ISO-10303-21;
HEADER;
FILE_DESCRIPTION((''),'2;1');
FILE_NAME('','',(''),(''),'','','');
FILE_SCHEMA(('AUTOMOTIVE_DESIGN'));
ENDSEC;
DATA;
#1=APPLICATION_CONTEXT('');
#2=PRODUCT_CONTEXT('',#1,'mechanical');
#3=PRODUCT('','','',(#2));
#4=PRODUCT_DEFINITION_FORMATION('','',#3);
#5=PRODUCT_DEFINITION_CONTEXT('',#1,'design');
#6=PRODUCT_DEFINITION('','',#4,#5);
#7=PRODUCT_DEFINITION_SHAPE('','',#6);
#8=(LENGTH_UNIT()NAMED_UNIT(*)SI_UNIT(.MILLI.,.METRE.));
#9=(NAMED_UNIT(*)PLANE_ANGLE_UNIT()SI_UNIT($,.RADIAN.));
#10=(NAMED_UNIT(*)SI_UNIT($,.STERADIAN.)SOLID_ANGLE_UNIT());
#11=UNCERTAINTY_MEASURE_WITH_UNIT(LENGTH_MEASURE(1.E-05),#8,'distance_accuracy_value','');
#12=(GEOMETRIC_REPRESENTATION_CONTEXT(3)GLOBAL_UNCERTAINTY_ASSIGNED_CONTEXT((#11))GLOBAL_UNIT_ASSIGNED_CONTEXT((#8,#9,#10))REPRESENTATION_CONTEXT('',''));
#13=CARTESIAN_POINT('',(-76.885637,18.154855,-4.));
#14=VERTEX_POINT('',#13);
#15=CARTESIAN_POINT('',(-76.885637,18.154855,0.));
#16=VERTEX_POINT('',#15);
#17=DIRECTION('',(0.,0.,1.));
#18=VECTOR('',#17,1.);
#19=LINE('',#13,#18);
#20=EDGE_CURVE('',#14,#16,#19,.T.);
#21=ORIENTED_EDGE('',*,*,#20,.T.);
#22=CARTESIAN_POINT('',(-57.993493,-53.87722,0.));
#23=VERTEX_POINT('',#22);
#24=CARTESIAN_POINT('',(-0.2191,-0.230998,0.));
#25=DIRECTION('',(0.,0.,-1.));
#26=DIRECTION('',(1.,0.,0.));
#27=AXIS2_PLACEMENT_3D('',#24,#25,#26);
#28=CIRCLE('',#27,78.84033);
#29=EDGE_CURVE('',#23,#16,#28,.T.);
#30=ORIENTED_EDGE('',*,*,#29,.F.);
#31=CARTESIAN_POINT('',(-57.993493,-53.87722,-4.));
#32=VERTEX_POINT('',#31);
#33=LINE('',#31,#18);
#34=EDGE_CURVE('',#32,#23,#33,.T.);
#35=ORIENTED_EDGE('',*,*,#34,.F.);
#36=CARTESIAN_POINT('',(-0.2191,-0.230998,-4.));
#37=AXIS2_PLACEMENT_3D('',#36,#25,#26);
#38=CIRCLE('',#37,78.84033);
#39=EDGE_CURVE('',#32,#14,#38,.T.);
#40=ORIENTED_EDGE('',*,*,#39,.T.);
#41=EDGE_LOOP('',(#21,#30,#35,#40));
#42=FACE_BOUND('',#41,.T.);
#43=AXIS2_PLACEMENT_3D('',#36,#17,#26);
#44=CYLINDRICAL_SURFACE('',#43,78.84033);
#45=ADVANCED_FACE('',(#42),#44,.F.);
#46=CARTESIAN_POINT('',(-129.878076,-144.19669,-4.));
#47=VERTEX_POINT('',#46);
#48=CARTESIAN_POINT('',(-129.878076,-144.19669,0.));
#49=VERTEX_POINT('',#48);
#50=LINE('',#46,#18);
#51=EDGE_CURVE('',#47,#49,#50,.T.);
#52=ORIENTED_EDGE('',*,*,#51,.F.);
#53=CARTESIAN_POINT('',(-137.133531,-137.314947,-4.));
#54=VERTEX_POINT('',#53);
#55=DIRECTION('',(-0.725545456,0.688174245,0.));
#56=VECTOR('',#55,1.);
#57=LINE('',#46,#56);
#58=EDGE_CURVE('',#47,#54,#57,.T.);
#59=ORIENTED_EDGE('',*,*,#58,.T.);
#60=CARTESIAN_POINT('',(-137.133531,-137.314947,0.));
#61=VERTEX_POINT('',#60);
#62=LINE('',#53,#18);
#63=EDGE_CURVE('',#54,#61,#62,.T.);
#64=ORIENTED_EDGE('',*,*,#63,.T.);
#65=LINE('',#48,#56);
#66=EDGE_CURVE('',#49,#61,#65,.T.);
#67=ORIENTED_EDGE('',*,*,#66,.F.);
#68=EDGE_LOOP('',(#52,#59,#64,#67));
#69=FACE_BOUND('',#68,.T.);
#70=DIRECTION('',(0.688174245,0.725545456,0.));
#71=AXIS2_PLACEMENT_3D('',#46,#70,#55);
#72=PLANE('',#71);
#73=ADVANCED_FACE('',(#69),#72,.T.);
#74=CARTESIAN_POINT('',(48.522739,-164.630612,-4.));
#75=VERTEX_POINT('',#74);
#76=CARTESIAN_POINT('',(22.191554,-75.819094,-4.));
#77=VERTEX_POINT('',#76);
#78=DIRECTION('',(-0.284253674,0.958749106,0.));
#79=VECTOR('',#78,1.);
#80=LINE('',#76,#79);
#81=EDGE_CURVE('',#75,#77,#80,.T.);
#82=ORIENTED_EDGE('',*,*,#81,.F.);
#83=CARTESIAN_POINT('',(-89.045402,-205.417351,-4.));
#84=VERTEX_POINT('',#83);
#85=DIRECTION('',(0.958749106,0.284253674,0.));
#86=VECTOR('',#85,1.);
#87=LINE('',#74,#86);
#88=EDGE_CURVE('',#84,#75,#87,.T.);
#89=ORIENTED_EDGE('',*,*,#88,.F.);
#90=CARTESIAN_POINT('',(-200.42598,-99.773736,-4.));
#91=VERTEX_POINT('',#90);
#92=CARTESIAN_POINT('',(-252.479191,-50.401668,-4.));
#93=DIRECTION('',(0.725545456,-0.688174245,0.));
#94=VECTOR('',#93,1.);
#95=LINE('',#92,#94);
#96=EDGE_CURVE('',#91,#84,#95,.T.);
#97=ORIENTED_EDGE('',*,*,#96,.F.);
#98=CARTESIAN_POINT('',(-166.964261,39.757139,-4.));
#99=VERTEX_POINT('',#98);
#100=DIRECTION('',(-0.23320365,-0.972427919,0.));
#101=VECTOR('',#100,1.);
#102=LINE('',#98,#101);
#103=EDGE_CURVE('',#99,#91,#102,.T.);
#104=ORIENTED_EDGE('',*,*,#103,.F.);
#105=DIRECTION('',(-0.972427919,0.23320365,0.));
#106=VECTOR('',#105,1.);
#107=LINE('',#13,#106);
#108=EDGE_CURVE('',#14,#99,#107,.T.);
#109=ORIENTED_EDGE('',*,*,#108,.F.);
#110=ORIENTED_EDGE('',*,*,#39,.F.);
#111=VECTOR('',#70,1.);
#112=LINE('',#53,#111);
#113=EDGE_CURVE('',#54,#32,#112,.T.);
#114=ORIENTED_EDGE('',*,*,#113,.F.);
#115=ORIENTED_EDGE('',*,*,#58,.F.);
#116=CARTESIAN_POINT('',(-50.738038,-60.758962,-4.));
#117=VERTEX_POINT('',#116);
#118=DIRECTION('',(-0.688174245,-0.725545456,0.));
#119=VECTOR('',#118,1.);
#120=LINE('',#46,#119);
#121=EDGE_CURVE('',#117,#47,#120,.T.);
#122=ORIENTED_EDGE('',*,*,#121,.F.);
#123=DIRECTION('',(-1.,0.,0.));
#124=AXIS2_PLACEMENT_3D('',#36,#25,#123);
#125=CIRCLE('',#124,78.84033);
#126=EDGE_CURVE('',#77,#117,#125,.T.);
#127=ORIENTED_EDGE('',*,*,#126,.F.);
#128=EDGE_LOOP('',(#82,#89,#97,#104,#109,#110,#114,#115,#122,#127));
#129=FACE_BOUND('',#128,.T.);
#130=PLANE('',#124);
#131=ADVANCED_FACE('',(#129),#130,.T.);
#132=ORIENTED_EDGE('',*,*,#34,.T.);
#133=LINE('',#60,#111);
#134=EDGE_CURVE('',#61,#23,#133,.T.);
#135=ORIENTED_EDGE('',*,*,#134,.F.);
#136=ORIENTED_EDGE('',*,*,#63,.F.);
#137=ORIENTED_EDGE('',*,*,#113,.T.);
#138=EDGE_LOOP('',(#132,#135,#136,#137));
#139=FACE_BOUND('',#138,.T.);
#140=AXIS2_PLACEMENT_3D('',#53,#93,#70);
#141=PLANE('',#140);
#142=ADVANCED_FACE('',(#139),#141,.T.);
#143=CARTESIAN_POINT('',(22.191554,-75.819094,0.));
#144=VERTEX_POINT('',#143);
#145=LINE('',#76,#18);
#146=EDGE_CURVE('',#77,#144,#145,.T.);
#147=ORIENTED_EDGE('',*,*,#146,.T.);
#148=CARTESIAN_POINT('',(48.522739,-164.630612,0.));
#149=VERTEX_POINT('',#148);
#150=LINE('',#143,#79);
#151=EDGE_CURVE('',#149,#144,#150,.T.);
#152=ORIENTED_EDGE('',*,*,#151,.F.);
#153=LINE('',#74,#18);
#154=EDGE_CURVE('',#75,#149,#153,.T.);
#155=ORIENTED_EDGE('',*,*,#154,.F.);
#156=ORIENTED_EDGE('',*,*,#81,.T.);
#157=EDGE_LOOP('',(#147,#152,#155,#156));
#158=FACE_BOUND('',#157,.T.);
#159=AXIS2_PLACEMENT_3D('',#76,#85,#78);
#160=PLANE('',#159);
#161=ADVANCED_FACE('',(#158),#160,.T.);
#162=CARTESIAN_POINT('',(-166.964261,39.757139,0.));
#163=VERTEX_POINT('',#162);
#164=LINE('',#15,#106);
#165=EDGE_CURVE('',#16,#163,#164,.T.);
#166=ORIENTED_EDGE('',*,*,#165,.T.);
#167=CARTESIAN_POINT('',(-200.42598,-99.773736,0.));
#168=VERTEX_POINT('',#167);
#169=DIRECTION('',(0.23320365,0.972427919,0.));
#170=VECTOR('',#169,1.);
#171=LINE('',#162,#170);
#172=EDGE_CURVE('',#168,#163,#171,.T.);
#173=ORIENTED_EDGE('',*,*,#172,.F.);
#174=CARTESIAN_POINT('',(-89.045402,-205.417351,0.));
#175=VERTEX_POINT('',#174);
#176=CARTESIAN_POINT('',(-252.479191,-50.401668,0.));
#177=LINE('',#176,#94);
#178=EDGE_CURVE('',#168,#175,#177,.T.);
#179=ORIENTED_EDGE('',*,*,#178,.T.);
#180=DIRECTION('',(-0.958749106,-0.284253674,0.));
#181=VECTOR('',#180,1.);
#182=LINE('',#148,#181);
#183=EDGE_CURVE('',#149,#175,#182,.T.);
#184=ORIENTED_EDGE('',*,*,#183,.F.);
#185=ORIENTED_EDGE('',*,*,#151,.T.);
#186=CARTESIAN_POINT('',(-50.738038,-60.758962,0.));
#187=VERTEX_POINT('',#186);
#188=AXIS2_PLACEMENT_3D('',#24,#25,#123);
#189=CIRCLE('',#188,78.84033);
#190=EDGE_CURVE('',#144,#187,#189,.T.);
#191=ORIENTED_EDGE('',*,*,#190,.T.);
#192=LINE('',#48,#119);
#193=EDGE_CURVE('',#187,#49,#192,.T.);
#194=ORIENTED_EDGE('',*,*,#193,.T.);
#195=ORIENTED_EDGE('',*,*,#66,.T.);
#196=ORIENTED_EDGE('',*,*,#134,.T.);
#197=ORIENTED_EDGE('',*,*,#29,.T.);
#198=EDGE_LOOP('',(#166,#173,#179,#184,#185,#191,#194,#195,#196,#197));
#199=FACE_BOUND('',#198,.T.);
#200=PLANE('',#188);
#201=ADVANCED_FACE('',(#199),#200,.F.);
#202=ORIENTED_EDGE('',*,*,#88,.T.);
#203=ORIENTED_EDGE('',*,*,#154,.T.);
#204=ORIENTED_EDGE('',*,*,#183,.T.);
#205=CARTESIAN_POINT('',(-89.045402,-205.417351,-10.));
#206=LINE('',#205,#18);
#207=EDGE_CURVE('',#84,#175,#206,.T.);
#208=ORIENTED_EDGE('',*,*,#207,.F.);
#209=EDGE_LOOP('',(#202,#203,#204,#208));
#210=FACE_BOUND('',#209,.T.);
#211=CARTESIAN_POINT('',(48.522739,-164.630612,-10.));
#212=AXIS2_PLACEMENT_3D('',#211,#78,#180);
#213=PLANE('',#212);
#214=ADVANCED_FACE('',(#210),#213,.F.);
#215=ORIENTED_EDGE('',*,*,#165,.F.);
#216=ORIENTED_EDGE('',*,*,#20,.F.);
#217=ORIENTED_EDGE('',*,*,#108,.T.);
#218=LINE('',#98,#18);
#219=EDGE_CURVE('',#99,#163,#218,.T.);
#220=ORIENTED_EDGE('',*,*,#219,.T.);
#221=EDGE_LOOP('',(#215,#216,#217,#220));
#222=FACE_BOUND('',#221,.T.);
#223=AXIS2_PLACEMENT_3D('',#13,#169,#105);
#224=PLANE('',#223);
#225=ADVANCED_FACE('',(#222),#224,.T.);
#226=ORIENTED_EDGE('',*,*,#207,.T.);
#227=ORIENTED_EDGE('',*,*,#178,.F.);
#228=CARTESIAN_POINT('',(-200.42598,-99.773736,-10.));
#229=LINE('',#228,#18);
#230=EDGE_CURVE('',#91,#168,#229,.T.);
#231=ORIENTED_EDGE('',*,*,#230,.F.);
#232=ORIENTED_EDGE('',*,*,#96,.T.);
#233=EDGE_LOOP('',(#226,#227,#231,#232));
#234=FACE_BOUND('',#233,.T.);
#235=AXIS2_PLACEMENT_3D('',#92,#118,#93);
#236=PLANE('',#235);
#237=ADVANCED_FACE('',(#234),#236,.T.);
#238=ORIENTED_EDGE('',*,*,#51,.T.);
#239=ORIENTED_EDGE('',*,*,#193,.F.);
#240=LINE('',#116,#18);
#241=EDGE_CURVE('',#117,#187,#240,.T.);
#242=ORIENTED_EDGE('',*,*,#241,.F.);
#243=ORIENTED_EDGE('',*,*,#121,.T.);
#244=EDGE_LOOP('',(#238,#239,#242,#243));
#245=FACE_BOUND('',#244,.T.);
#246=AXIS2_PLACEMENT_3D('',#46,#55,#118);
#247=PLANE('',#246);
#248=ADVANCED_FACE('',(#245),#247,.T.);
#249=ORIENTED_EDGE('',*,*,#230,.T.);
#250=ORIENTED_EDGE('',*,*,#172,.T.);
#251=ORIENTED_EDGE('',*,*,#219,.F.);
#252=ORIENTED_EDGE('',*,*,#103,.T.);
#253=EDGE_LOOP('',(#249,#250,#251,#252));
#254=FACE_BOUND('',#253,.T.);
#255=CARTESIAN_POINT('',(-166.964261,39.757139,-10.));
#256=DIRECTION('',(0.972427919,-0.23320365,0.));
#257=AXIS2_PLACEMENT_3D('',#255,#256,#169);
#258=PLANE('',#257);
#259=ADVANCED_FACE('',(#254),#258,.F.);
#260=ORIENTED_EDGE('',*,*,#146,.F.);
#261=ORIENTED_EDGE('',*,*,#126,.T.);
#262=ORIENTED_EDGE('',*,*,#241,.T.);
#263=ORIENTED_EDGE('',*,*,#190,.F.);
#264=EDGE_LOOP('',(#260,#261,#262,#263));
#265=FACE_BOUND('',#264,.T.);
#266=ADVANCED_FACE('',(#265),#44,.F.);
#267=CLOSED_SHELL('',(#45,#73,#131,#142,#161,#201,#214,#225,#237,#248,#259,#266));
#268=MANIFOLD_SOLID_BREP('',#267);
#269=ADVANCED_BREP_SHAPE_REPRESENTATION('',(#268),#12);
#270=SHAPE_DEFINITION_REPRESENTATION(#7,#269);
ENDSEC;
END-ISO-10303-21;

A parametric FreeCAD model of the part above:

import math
import FreeCAD as App
import Part
import Sketcher
from FreeCAD import Vector
Q = App.Units.Quantity


def add_polygon(sketch, points):
    """Adds a closed chain of lines whose ends are joined by coincident constraints."""
    first, n = sketch.GeometryCount, len(points)
    for a, b in zip(points, points[1:] + points[:1]):
        sketch.addGeometry(Part.LineSegment(App.Vector(*a, 0), App.Vector(*b, 0)), False)
    for i in range(n):
        sketch.addConstraint(Sketcher.Constraint("Coincident", first + i, 2, first + (i + 1) % n, 1))

doc = App.newDocument("Part")
params = doc.addObject("Spreadsheet::Sheet", "Params")
for row, (alias, value) in enumerate([
    ("sketch1_length", "297 mm"),
    ("sketch1_length2", "115 mm"),
    ("sketch1_length3", "10 mm"),
    ("pad1_length", "4 mm"),
    ("pocket1_length", "10 mm"),
], start=1):
    params.set(f"A{row}", alias)
    params.set(f"B{row}", "=" + value)
    params.setAlias(f"B{row}", alias)

body = doc.addObject("PartDesign::Body", "Body")

# Sketch on XY plane
sketch1 = body.newObject("Sketcher::SketchObject", "Sketch")
sketch1.AttachmentSupport = (doc.getObject("XY_Plane"), [""])
sketch1.MapMode = "FlatFace"
sketch1.addGeometry([
    Part.LineSegment(Vector(-252, -50, 0), Vector(-37, -255, 0)),  # 0
    Part.LineSegment(Vector(-37, -255, 0), Vector(49, -165, 0)),  # 1
    Part.LineSegment(Vector(49, -165, 0), Vector(22, -76, 0)),  # 2
    Part.ArcOfCircle(Part.Circle(Vector(0, 0, 0), Vector(0, 0, 1), 79), math.radians(-130), math.radians(-73)),  # 3
    Part.LineSegment(Vector(-51, -61, 0), Vector(-130, -144, 0)),  # 4
    Part.LineSegment(Vector(-130, -144, 0), Vector(-137, -137, 0)),  # 5
    Part.LineSegment(Vector(-137, -137, 0), Vector(-58, -54, 0)),  # 6
    Part.ArcOfCircle(Part.Circle(Vector(0, 0, 0), Vector(0, 0, 1), 79), math.radians(167), math.radians(223)),  # 7
    Part.LineSegment(Vector(-77, 18, 0), Vector(-167, 40, 0)),  # 8
    Part.LineSegment(Vector(-167, 40, 0), Vector(-252, -50, 0)),  # 9
], False)
sketch1.addConstraint([
    Sketcher.Constraint("Coincident", 0, 2, 1, 1),
    Sketcher.Constraint("Coincident", 1, 2, 2, 1),
    Sketcher.Constraint("Coincident", 2, 2, 3, 2),
    Sketcher.Constraint("Coincident", 3, 1, 4, 1),
    Sketcher.Constraint("Coincident", 4, 2, 5, 1),
    Sketcher.Constraint("Coincident", 5, 2, 6, 1),
    Sketcher.Constraint("Coincident", 6, 2, 7, 2),
    Sketcher.Constraint("Coincident", 7, 1, 8, 1),
    Sketcher.Constraint("Coincident", 8, 2, 9, 1),
    Sketcher.Constraint("Coincident", 9, 2, 0, 1),
    Sketcher.Constraint("Coincident", 7, 3, 3, 3),
    Sketcher.Constraint("Equal", 3, 7),
    Sketcher.Constraint("Perpendicular", 0, 1),
    Sketcher.Constraint("Parallel", 1, 4),
    Sketcher.Constraint("Perpendicular", 4, 5),
    Sketcher.Constraint("Perpendicular", 5, 6),
    Sketcher.Constraint("Parallel", 6, 9),
    Sketcher.Constraint("Equal", 4, 6),
    Sketcher.Constraint("Equal", 2, 8),
    Sketcher.Constraint("Equal", 1, 9),
    Sketcher.Constraint("Distance", 0, Q("297 mm")),
    Sketcher.Constraint("Distance", 4, Q("115 mm")),
    Sketcher.Constraint("Distance", 5, Q("10 mm")),
    Sketcher.Constraint("Radius", 3, Q("78.84033 mm")),
    Sketcher.Constraint("DistanceY", 3, 3, -1, 1, Q("0.230998 mm")),
    Sketcher.Constraint("Distance", 2, Q("92.6327 mm")),
    Sketcher.Constraint("DistanceX", 3, 3, -1, 1, Q("0.2191 mm")),
    Sketcher.Constraint("DistanceX", 7, 1, 3, 1, Q("26.147599 mm")),
    Sketcher.Constraint("DistanceY", 3, 1, 8, 2, Q("100.516101 mm")),
    Sketcher.Constraint("DistanceX", 9, 2, 6, 2, Q("194.485699 mm")),
    Sketcher.Constraint("DistanceY", 1, 2, 2, 2, Q("88.811519 mm")),
])
sketch1.setExpression("Constraints[20]", "Params.sketch1_length")
sketch1.setExpression("Constraints[21]", "Params.sketch1_length2")
sketch1.setExpression("Constraints[22]", "Params.sketch1_length3")
pad1 = body.newObject("PartDesign::Pad", "Pad")
pad1.Profile = sketch1
pad1.setExpression("Length", "Params.pad1_length")
pad1.Reversed = True

# Sketch on XY plane
sketch2 = body.newObject("Sketcher::SketchObject", "Sketch001")
sketch2.AttachmentSupport = (doc.getObject("XY_Plane"), [""])
sketch2.MapMode = "FlatFace"
add_polygon(sketch2, [(-200, -100), (-167, 40), (-252, -50)])  # lines 0-2
add_polygon(sketch2, [(-37, -255), (49, -165), (-89, -205)])  # lines 3-5
sketch2.addConstraint([
    Sketcher.Constraint("Perpendicular", 1, 2),
    Sketcher.Constraint("Perpendicular", 2, 3),
    Sketcher.Constraint("Perpendicular", 3, 5),
    Sketcher.Constraint("Equal", 1, 3),
    Sketcher.Constraint("Equal", 0, 4),
    Sketcher.Constraint("DistanceX", 0, 2, 3, 2, Q("215.487 mm")),
    Sketcher.Constraint("DistanceX", 0, 2, -1, 1, Q("166.964261 mm")),
    Sketcher.Constraint("DistanceY", -1, 1, 0, 2, Q("39.757139 mm")),
    Sketcher.Constraint("DistanceX", 1, 2, -1, 1, Q("252.479191 mm")),
    Sketcher.Constraint("DistanceY", 1, 2, -1, 1, Q("50.401668 mm")),
    Sketcher.Constraint("DistanceX", 2, 2, -1, 1, Q("200.42598 mm")),
    Sketcher.Constraint("DistanceY", 4, 2, -1, 1, Q("205.417351 mm")),
])
pocket1 = body.newObject("PartDesign::Pocket", "Pocket")
pocket1.Profile = sketch2
pocket1.setExpression("Length", "Params.pocket1_length")

doc.recompute()
